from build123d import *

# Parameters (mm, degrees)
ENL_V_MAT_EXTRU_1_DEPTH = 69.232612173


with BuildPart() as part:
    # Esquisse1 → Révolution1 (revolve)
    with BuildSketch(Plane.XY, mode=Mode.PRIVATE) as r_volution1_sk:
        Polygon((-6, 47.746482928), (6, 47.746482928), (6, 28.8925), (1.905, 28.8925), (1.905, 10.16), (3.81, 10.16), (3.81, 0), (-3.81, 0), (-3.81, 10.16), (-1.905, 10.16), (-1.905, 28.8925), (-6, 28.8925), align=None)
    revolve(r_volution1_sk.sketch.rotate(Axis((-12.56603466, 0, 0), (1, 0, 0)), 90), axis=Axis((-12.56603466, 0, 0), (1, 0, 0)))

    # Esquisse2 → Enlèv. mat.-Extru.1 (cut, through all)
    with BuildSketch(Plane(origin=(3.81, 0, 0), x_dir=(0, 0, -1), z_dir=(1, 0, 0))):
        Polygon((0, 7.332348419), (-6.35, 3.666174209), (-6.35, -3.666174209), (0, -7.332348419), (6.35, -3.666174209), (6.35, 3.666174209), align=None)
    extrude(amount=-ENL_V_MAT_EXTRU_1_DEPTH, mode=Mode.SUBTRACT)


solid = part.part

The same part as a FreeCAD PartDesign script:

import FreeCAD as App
import Part
import Sketcher

V = App.Vector
Q = App.Units.Quantity


def add_polygon(sketch, points):
    """Adds a closed chain of lines whose ends are joined by coincident constraints."""
    first, n = sketch.GeometryCount, len(points)
    for a, b in zip(points, points[1:] + points[:1]):
        sketch.addGeometry(Part.LineSegment(App.Vector(*a, 0), App.Vector(*b, 0)), False)
    for i in range(n):
        sketch.addConstraint(Sketcher.Constraint("Coincident", first + i, 2, first + (i + 1) % n, 1))

doc = App.newDocument("Part")
params = doc.addObject("Spreadsheet::Sheet", "Params")
for row, (alias, value) in enumerate([
    ("sketch1_width", "0.3 in"),
    ("sketch1_height", "0.4 in"),
    ("sketch1_width2", "0.075 in"),
    ("revolution_angle", "360 deg"),
], start=1):
    params.set(f"A{row}", alias)
    params.set(f"B{row}", "=" + value)
    params.setAlias(f"B{row}", alias)

body = doc.addObject("PartDesign::Body", "Body")

# Sketch on XY plane
sketch1 = doc.addObject("Sketcher::SketchObject", "Sketch")
body.addObject(sketch1)
sketch1.AttachmentSupport = (doc.XY_Plane, [""])
sketch1.MapMode = "FlatFace"
add_polygon(sketch1, [(6, 47.746483), (-6, 47.746483), (-6, 28.8925), (-1.905, 28.8925), (-1.905, 10.16), (-3.81, 10.16), (-3.81, 0), (3.81, 0), (3.81, 10.16), (1.905, 10.16), (1.905, 28.8925), (6, 28.8925)])  # lines 0-11
sketch1.addConstraint(Sketcher.Constraint("Horizontal", 0))
sketch1.addConstraint(Sketcher.Constraint("Vertical", 1))
sketch1.addConstraint(Sketcher.Constraint("Horizontal", 2))
sketch1.addConstraint(Sketcher.Constraint("Vertical", 3))
sketch1.addConstraint(Sketcher.Constraint("Horizontal", 4))
sketch1.addConstraint(Sketcher.Constraint("Vertical", 5))
sketch1.addConstraint(Sketcher.Constraint("Horizontal", 6))
sketch1.addConstraint(Sketcher.Constraint("Vertical", 7))
sketch1.addConstraint(Sketcher.Constraint("Horizontal", 8))
sketch1.addConstraint(Sketcher.Constraint("Vertical", 9))
sketch1.addConstraint(Sketcher.Constraint("Horizontal", 10))
sketch1.addConstraint(Sketcher.Constraint("Vertical", 11))
sketch1.addConstraint(Sketcher.Constraint("Symmetric", 5, 2, 6, 2, -1, 1))
sketch1.addConstraint(Sketcher.Constraint("Symmetric", 3, 2, 8, 2, -2))
sketch1.addConstraint(Sketcher.Constraint("Symmetric", 1, 2, 10, 2, -2))
sketch1.addConstraint(Sketcher.Constraint("DistanceX", 6, 1, 6, 2, Q("0.3 in")))
sketch1.addConstraint(Sketcher.Constraint("DistanceY", 5, 2, 5, 1, Q("0.4 in")))
sketch1.addConstraint(Sketcher.Constraint("DistanceX", 4, 2, 4, 1, Q("0.075 in")))
sketch1.addConstraint(Sketcher.Constraint("DistanceY", 3, 2, 3, 1, Q("0.7375 in")))
sketch1.addConstraint(Sketcher.Constraint("DistanceX", 0, 2, 0, 1, 12.0))
sketch1.addConstraint(Sketcher.Constraint("DistanceY", 1, 2, 1, 1, 18.853983))
sketch1.setExpression("Constraints[27]", "Params.sketch1_width")
sketch1.setExpression("Constraints[28]", "Params.sketch1_height")
sketch1.setExpression("Constraints[29]", "Params.sketch1_width2")
revolution = doc.addObject("PartDesign::Revolution", "Revolution")
body.addObject(revolution)
revolution.Profile = sketch1
revolution.ReferenceAxis = (sketch1, ["H_Axis"])
revolution.setExpression("Angle", "Params.revolution_angle")

# Sketch on YZ plane
sketch2 = doc.addObject("Sketcher::SketchObject", "Sketch001")
body.addObject(sketch2)
sketch2.AttachmentSupport = (doc.YZ_Plane, [""])
sketch2.MapMode = "FlatFace"
sketch2.AttachmentOffset = App.Placement(V(0, 0, 0.15 * 25.4), App.Rotation())
add_polygon(sketch2, [(7.332348, 0), (3.666174, 6.35), (-3.666174, 6.35), (-7.332348, 0), (-3.666174, -6.35), (3.666174, -6.35)])  # lines 0-5
sketch2.addConstraint(Sketcher.Constraint("Horizontal", 1))
sketch2.addConstraint(Sketcher.Constraint("Horizontal", 4))
sketch2.addConstraint(Sketcher.Constraint("Symmetric", 0, 2, 3, 2, -1, 1))
sketch2.addConstraint(Sketcher.Constraint("Symmetric", 2, 2, 5, 2, -1, 1))
sketch2.addConstraint(Sketcher.Constraint("PointOnObject", 2, 2, -1))
sketch2.addConstraint(Sketcher.Constraint("Parallel", 2, 5))
sketch2.addConstraint(Sketcher.Constraint("Vertical", 1, 2, 3, 2))
sketch2.addConstraint(Sketcher.Constraint("Angle", 0, Q("120 deg")))
sketch2.addConstraint(Sketcher.Constraint("DistanceY", 3, 2, 1, 2, Q("0.5 in")))
sketch2.addConstraint(Sketcher.Constraint("DistanceX", 1, 2, 1, 1, 7.332348))
pocket1 = doc.addObject("PartDesign::Pocket", "Pocket")
body.addObject(pocket1)
pocket1.Profile = sketch2
pocket1.Type = "ThroughAll"

doc.recompute()
